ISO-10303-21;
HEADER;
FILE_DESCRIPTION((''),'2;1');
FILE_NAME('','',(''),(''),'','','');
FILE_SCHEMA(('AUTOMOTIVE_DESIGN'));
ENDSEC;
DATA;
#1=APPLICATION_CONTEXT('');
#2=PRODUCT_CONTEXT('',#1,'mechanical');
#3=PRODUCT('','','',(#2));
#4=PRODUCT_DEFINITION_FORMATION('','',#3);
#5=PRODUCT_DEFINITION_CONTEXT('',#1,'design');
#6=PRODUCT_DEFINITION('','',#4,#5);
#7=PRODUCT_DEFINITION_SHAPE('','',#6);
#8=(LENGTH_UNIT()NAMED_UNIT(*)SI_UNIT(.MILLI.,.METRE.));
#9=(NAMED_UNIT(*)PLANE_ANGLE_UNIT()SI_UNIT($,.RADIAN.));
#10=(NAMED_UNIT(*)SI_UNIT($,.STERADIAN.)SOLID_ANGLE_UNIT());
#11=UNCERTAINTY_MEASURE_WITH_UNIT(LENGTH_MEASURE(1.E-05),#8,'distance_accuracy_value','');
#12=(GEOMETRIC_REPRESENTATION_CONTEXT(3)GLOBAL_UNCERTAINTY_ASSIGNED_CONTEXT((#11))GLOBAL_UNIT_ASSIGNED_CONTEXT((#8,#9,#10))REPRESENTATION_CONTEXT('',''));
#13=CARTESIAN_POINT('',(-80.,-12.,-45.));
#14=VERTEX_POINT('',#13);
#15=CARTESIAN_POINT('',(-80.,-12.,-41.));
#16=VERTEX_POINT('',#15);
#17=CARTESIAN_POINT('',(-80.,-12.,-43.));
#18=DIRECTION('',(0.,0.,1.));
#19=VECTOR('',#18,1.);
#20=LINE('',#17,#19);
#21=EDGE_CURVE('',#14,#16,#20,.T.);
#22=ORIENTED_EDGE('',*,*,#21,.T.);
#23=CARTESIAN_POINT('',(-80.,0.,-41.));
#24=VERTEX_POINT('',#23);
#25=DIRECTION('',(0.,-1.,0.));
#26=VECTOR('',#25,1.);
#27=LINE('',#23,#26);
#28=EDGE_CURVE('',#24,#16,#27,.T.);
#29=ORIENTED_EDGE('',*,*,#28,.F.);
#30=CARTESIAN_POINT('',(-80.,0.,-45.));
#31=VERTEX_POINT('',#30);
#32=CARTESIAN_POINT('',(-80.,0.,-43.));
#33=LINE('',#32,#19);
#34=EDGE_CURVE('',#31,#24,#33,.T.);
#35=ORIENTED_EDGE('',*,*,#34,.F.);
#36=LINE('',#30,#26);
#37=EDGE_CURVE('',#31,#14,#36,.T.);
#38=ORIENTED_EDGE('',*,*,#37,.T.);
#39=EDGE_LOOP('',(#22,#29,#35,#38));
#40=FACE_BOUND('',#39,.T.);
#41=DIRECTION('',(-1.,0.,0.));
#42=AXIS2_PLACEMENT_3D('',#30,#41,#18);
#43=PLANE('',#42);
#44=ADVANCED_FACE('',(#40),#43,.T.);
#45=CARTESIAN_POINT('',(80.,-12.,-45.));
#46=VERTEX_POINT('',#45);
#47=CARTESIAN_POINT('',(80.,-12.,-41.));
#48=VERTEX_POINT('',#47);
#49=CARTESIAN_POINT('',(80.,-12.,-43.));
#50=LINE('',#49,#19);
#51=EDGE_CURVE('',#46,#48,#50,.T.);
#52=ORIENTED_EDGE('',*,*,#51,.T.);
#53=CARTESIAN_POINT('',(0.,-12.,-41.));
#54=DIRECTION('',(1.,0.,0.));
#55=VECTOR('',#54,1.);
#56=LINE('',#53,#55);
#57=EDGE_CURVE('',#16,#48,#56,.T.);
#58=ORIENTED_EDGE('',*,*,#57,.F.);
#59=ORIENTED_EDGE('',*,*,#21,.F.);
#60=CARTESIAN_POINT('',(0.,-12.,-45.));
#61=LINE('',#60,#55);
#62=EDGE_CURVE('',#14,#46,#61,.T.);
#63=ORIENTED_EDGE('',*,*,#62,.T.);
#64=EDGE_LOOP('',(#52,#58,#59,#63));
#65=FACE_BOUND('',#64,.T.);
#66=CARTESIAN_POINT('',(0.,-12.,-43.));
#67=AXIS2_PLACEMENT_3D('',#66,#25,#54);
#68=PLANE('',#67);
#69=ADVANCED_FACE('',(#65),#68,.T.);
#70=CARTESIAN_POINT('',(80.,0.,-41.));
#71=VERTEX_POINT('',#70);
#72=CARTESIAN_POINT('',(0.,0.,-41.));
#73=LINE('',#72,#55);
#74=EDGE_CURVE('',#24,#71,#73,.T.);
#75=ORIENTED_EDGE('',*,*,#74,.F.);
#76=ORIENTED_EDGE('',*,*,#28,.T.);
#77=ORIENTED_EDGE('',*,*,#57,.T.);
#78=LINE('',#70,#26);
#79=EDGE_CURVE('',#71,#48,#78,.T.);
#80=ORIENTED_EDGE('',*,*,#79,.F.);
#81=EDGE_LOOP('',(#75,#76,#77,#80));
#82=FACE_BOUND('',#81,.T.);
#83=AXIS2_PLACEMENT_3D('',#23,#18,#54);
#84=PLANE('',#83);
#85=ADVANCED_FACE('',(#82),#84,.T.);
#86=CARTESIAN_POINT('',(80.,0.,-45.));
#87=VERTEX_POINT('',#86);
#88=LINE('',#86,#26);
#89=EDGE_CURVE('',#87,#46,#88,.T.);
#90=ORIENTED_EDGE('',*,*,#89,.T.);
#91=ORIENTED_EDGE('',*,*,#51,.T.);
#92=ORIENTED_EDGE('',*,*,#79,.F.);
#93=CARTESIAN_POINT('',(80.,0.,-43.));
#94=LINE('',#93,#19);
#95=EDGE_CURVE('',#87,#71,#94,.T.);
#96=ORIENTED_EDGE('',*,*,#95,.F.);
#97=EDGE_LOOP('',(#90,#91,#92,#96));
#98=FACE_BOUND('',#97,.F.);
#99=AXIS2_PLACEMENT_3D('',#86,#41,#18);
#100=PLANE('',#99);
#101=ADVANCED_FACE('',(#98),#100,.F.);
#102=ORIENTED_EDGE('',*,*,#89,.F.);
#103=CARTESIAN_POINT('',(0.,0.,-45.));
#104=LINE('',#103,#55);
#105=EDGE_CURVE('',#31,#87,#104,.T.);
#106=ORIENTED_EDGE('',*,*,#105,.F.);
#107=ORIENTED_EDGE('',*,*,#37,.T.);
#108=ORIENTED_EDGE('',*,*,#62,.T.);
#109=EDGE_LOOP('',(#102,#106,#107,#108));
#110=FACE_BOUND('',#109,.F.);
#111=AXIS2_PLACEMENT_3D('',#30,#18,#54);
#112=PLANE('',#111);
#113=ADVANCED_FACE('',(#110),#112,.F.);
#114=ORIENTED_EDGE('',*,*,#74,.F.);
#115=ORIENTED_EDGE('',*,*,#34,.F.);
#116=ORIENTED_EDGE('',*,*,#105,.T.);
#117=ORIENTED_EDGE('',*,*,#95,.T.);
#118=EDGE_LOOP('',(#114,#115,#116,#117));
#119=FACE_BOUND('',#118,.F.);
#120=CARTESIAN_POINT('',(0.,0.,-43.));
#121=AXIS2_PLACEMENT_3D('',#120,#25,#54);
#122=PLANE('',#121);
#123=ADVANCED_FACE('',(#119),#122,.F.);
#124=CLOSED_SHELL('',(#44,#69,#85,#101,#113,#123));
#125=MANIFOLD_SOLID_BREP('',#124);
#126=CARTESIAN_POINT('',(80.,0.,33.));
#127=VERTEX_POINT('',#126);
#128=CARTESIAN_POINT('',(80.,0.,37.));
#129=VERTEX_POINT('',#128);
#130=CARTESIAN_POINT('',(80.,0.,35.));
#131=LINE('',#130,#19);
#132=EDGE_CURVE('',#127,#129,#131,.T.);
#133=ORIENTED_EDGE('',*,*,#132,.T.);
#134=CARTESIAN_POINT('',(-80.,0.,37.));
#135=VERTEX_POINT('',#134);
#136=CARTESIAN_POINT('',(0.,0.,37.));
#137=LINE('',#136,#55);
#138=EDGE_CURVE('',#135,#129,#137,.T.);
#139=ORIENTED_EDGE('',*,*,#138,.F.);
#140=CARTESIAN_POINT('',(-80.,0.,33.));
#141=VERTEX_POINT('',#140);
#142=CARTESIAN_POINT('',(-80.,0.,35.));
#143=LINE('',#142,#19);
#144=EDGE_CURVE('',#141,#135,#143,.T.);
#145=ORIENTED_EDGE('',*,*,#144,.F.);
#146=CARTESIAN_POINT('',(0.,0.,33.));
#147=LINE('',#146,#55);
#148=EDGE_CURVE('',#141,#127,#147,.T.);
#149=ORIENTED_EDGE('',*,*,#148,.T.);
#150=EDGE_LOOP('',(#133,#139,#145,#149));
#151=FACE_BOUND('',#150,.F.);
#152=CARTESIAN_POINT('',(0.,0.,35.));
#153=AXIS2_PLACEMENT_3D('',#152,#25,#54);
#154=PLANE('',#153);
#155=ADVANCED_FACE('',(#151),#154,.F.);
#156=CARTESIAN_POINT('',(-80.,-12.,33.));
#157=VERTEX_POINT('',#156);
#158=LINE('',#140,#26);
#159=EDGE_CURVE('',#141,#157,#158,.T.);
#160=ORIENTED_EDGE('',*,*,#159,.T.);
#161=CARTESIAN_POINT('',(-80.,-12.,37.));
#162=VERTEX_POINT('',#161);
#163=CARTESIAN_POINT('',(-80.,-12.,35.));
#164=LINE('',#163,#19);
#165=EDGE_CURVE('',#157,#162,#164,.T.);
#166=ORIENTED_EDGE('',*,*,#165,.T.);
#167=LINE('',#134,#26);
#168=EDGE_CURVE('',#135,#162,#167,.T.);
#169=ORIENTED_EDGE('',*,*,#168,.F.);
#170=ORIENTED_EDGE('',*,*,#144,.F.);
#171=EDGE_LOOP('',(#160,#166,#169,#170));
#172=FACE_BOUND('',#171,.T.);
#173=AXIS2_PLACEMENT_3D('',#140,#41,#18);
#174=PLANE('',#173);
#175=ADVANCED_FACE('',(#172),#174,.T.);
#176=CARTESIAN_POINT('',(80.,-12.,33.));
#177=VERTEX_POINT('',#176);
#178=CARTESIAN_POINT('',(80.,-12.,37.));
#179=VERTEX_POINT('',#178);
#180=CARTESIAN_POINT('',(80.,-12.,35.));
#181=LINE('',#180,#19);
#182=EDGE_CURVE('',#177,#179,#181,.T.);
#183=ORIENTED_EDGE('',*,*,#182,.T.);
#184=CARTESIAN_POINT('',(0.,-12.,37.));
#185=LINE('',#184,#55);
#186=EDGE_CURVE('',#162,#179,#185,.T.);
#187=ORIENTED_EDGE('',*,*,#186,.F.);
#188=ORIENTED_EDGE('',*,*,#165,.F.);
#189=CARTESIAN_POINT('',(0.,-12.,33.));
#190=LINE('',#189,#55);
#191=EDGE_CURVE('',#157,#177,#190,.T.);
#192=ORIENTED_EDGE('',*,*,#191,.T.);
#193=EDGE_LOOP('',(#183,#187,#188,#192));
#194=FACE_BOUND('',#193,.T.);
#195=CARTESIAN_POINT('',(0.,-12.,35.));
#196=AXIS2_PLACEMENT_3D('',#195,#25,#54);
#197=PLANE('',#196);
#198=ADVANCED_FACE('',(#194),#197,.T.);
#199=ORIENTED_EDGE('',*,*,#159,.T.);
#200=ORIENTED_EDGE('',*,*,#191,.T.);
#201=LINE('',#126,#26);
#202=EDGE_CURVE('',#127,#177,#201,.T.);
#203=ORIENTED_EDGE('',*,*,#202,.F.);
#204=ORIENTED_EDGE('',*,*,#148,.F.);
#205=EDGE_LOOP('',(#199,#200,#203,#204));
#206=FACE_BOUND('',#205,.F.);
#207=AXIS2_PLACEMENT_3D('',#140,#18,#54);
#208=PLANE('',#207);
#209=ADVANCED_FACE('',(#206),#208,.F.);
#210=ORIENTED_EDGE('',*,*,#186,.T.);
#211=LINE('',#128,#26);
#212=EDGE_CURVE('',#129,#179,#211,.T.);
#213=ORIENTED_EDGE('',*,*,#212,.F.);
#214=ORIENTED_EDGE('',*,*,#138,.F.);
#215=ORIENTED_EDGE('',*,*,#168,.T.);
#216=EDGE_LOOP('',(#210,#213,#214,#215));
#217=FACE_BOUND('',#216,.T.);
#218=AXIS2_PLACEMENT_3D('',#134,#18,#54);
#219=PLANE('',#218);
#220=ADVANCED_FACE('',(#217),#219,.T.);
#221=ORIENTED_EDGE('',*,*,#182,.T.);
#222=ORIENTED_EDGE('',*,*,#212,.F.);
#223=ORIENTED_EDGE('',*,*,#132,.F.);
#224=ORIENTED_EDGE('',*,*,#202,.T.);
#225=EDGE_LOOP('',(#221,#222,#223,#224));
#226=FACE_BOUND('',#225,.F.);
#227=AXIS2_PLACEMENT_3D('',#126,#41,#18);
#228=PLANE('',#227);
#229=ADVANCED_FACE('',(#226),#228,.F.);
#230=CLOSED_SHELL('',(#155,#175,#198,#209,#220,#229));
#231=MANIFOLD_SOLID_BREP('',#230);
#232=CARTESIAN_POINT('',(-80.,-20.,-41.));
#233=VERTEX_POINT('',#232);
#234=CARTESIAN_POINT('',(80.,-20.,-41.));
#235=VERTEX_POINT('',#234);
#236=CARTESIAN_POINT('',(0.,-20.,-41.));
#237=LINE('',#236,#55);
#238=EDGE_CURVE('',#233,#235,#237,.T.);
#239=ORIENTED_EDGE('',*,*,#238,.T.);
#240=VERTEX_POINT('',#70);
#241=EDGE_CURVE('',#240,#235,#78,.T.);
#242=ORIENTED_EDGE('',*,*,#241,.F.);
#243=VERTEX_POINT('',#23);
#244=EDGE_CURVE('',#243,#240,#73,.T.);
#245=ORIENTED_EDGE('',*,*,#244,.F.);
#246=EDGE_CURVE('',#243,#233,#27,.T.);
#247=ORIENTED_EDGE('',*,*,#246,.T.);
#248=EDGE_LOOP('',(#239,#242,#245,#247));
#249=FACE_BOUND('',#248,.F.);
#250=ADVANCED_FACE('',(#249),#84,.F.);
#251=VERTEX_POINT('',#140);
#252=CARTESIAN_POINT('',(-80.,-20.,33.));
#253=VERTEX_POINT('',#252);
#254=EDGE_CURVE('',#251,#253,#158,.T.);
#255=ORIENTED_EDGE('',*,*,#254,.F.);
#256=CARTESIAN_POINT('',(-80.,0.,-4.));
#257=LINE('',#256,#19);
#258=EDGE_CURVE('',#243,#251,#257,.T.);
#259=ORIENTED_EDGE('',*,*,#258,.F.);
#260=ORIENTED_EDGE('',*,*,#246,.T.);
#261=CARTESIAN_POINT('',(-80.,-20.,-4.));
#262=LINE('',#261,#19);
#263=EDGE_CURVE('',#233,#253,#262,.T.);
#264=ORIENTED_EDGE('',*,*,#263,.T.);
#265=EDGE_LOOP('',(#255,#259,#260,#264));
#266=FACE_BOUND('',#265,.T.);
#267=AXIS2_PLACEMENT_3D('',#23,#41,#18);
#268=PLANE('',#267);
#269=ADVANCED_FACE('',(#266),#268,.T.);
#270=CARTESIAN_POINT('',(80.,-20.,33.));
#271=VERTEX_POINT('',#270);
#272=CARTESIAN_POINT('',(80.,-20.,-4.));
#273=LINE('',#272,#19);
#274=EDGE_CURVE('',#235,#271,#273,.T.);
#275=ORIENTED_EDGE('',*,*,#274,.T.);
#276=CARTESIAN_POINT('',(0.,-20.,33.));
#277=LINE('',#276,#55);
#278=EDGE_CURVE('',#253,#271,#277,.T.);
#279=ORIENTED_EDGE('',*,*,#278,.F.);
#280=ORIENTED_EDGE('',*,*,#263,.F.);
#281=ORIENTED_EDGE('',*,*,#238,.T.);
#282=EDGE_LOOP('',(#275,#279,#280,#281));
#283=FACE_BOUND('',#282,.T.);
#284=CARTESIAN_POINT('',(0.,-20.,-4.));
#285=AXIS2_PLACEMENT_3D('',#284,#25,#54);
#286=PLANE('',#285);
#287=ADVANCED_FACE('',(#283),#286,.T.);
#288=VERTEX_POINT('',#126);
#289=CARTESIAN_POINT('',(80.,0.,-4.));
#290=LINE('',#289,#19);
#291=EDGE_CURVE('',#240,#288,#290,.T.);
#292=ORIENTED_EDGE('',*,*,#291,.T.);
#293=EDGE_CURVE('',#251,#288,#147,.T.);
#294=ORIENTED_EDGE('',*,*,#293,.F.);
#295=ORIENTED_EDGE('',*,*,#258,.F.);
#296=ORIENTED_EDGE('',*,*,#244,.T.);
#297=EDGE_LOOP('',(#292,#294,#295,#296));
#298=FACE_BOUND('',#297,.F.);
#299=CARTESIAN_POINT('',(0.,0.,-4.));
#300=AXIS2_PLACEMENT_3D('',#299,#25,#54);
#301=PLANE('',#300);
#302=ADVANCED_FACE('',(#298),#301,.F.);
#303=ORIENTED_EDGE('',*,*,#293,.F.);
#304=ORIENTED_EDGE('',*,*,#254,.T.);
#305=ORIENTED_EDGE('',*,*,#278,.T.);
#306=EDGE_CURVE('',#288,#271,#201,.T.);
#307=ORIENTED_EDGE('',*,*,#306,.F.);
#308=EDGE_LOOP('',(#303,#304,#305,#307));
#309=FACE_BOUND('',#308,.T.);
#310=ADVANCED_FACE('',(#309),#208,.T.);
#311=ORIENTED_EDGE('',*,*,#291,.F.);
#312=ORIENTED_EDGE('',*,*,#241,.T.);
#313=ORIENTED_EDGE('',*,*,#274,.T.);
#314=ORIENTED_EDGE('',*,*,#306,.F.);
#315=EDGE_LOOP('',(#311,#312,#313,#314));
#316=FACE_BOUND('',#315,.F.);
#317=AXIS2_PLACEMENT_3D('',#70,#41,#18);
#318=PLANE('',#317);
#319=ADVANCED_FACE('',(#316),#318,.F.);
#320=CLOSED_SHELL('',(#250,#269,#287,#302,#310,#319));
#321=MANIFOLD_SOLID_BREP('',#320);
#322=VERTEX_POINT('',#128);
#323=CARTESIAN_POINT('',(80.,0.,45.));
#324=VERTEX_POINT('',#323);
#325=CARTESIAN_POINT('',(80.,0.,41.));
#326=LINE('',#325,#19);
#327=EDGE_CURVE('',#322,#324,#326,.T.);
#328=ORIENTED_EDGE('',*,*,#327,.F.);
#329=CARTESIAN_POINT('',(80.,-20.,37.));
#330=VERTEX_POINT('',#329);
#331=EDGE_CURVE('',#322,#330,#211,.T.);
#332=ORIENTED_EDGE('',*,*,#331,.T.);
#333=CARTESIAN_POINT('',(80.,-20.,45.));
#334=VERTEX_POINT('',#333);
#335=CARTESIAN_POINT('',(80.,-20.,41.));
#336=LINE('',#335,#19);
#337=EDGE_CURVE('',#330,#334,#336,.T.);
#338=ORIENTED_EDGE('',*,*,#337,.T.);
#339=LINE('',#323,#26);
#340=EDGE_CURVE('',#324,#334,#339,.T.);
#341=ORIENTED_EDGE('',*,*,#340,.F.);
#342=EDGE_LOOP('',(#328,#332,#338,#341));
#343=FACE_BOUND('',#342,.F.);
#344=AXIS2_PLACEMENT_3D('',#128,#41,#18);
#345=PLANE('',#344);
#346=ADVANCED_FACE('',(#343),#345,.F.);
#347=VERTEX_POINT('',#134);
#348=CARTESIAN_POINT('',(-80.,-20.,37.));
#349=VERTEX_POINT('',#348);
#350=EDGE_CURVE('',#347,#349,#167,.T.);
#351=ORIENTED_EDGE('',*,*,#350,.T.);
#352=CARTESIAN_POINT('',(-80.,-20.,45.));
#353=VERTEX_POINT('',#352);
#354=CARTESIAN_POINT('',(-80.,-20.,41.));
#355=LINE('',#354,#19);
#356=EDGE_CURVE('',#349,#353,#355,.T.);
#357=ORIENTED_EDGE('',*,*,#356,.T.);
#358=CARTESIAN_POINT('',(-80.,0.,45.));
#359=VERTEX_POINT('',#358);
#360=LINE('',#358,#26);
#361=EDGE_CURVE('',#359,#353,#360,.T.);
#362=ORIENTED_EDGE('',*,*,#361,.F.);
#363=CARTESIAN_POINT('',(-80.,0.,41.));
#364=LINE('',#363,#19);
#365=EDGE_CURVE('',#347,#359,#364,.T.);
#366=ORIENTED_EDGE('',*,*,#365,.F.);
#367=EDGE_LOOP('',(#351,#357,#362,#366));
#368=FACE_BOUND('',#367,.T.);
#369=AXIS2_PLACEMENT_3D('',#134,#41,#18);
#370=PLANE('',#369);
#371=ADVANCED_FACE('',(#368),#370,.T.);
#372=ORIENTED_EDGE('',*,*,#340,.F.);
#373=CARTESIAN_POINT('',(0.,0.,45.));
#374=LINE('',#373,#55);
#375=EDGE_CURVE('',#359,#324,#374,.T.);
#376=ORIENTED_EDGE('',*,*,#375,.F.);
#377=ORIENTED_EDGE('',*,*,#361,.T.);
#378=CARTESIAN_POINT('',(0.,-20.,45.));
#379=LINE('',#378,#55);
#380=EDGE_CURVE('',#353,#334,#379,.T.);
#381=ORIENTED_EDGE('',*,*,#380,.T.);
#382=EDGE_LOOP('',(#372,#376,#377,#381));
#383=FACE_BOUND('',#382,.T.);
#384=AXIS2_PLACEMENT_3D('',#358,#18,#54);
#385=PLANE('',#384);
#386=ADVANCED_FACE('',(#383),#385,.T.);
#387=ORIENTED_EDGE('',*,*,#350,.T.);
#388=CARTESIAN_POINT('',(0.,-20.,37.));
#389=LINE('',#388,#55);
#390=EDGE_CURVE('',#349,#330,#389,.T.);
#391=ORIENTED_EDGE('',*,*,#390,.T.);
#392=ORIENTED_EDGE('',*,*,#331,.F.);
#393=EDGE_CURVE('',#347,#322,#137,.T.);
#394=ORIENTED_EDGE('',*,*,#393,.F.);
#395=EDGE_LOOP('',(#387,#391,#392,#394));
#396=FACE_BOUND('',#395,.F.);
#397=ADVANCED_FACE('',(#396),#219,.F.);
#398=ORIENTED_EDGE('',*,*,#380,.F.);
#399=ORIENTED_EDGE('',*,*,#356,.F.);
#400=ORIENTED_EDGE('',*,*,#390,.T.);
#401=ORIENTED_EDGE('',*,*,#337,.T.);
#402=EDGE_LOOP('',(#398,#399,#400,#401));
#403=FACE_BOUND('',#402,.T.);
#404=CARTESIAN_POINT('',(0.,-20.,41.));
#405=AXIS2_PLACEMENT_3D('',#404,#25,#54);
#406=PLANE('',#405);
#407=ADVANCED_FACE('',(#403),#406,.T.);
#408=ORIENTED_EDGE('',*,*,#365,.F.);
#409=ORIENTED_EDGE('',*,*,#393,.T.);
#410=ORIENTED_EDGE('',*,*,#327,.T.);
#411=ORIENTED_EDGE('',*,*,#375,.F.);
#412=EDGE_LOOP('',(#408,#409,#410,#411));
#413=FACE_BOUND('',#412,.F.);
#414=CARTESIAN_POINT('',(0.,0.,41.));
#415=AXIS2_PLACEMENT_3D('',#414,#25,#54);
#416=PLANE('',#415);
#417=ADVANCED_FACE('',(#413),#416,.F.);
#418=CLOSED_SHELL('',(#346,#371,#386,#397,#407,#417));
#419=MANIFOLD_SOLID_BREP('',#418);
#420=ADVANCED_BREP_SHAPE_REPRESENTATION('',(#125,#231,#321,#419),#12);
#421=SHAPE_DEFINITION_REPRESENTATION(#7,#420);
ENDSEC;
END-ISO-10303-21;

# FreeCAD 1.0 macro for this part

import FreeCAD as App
import Part
import Sketcher

V = App.Vector
Q = App.Units.Quantity

doc = App.newDocument("Part")
body = doc.addObject("PartDesign::Body", "Body")
body.AllowCompound = True

# Sketch on XZ plane
sketch1 = doc.addObject("Sketcher::SketchObject", "Sketch")
body.addObject(sketch1)
sketch1.AttachmentSupport = (doc.XZ_Plane, [""])
sketch1.MapMode = "FlatFace"
sketch1.addGeometry([
    Part.LineSegment(V(-80, 37, 0), V(-80, 33, 0)),  # 0
    Part.LineSegment(V(-80, 33, 0), V(80, 33, 0)),  # 1
    Part.LineSegment(V(80, 33, 0), V(80, 37, 0)),  # 2
    Part.LineSegment(V(80, 37, 0), V(-80, 37, 0)),  # 3
    Part.LineSegment(V(-80, -41, 0), V(-80, -45, 0)),  # 4
    Part.LineSegment(V(-80, -45, 0), V(80, -45, 0)),  # 5
    Part.LineSegment(V(80, -45, 0), V(80, -41, 0)),  # 6
    Part.LineSegment(V(80, -41, 0), V(-80, -41, 0)),  # 7
], False)
sketch1.addConstraint([
    Sketcher.Constraint("Coincident", 0, 2, 1, 1),
    Sketcher.Constraint("Coincident", 1, 2, 2, 1),
    Sketcher.Constraint("Coincident", 2, 2, 3, 1),
    Sketcher.Constraint("Coincident", 3, 2, 0, 1),
    Sketcher.Constraint("Coincident", 4, 2, 5, 1),
    Sketcher.Constraint("Coincident", 5, 2, 6, 1),
    Sketcher.Constraint("Coincident", 6, 2, 7, 1),
    Sketcher.Constraint("Coincident", 7, 2, 4, 1),
    Sketcher.Constraint("Vertical", 0),
    Sketcher.Constraint("Horizontal", 1),
    Sketcher.Constraint("Vertical", 2),
    Sketcher.Constraint("Horizontal", 3),
    Sketcher.Constraint("Vertical", 4),
    Sketcher.Constraint("Horizontal", 5),
    Sketcher.Constraint("Vertical", 6),
    Sketcher.Constraint("Horizontal", 7),
    Sketcher.Constraint("Vertical", 3, 2, 4, 2),
    Sketcher.Constraint("Vertical", 2, 2, 5, 2),
    Sketcher.Constraint("Equal", 2, 4),
    Sketcher.Constraint("DistanceX", 1, 1, 1, 2, Q("160 mm")),
    Sketcher.Constraint("DistanceY", 0, 2, 0, 1, Q("4 mm")),
    Sketcher.Constraint("DistanceX", 0, 2, -1, 1, Q("80 mm")),
    Sketcher.Constraint("DistanceY", -1, 1, 0, 2, Q("33 mm")),
    Sketcher.Constraint("DistanceY", 4, 2, -1, 1, Q("45 mm")),
])
pad1 = doc.addObject("PartDesign::Pad", "Pad")
body.addObject(pad1)
pad1.Profile = sketch1
pad1.Length = 12
body2 = doc.addObject("PartDesign::Body", "Body001")
body2.AllowCompound = True

# Sketch on XZ plane
sketch2 = doc.addObject("Sketcher::SketchObject", "Sketch001")
body2.addObject(sketch2)
sketch2.AttachmentSupport = (doc.getObject("XZ_Plane001"), [""])
sketch2.MapMode = "FlatFace"
sketch2.addGeometry([
    Part.LineSegment(V(-80, 33, 0), V(-80, -41, 0)),  # 0
    Part.LineSegment(V(-80, -41, 0), V(80, -41, 0)),  # 1
    Part.LineSegment(V(80, -41, 0), V(80, 33, 0)),  # 2
    Part.LineSegment(V(80, 33, 0), V(-80, 33, 0)),  # 3
    Part.LineSegment(V(-80, 45, 0), V(-80, 37, 0)),  # 4
    Part.LineSegment(V(-80, 37, 0), V(80, 37, 0)),  # 5
    Part.LineSegment(V(80, 37, 0), V(80, 45, 0)),  # 6
    Part.LineSegment(V(80, 45, 0), V(-80, 45, 0)),  # 7
], False)
sketch2.addConstraint([
    Sketcher.Constraint("Coincident", 0, 2, 1, 1),
    Sketcher.Constraint("Coincident", 1, 2, 2, 1),
    Sketcher.Constraint("Coincident", 2, 2, 3, 1),
    Sketcher.Constraint("Coincident", 3, 2, 0, 1),
    Sketcher.Constraint("Coincident", 4, 2, 5, 1),
    Sketcher.Constraint("Coincident", 5, 2, 6, 1),
    Sketcher.Constraint("Coincident", 6, 2, 7, 1),
    Sketcher.Constraint("Coincident", 7, 2, 4, 1),
    Sketcher.Constraint("Vertical", 0),
    Sketcher.Constraint("Horizontal", 1),
    Sketcher.Constraint("Vertical", 2),
    Sketcher.Constraint("Horizontal", 3),
    Sketcher.Constraint("Vertical", 4),
    Sketcher.Constraint("Horizontal", 5),
    Sketcher.Constraint("Vertical", 6),
    Sketcher.Constraint("Horizontal", 7),
    Sketcher.Constraint("Vertical", 3, 2, 4, 2),
    Sketcher.Constraint("Vertical", 2, 2, 5, 2),
    Sketcher.Constraint("DistanceX", 1, 1, 1, 2, Q("160 mm")),
    Sketcher.Constraint("DistanceY", 0, 2, 0, 1, Q("74 mm")),
    Sketcher.Constraint("DistanceY", 4, 2, 4, 1, Q("8 mm")),
    Sketcher.Constraint("DistanceX", 0, 2, -1, 1, Q("80 mm")),
    Sketcher.Constraint("DistanceY", 0, 2, -1, 1, Q("41 mm")),
    Sketcher.Constraint("DistanceY", -1, 1, 4, 2, Q("37 mm")),
])
pad2 = doc.addObject("PartDesign::Pad", "Pad001")
body2.addObject(pad2)
pad2.Profile = sketch2
pad2.Length = 20

doc.recompute()
